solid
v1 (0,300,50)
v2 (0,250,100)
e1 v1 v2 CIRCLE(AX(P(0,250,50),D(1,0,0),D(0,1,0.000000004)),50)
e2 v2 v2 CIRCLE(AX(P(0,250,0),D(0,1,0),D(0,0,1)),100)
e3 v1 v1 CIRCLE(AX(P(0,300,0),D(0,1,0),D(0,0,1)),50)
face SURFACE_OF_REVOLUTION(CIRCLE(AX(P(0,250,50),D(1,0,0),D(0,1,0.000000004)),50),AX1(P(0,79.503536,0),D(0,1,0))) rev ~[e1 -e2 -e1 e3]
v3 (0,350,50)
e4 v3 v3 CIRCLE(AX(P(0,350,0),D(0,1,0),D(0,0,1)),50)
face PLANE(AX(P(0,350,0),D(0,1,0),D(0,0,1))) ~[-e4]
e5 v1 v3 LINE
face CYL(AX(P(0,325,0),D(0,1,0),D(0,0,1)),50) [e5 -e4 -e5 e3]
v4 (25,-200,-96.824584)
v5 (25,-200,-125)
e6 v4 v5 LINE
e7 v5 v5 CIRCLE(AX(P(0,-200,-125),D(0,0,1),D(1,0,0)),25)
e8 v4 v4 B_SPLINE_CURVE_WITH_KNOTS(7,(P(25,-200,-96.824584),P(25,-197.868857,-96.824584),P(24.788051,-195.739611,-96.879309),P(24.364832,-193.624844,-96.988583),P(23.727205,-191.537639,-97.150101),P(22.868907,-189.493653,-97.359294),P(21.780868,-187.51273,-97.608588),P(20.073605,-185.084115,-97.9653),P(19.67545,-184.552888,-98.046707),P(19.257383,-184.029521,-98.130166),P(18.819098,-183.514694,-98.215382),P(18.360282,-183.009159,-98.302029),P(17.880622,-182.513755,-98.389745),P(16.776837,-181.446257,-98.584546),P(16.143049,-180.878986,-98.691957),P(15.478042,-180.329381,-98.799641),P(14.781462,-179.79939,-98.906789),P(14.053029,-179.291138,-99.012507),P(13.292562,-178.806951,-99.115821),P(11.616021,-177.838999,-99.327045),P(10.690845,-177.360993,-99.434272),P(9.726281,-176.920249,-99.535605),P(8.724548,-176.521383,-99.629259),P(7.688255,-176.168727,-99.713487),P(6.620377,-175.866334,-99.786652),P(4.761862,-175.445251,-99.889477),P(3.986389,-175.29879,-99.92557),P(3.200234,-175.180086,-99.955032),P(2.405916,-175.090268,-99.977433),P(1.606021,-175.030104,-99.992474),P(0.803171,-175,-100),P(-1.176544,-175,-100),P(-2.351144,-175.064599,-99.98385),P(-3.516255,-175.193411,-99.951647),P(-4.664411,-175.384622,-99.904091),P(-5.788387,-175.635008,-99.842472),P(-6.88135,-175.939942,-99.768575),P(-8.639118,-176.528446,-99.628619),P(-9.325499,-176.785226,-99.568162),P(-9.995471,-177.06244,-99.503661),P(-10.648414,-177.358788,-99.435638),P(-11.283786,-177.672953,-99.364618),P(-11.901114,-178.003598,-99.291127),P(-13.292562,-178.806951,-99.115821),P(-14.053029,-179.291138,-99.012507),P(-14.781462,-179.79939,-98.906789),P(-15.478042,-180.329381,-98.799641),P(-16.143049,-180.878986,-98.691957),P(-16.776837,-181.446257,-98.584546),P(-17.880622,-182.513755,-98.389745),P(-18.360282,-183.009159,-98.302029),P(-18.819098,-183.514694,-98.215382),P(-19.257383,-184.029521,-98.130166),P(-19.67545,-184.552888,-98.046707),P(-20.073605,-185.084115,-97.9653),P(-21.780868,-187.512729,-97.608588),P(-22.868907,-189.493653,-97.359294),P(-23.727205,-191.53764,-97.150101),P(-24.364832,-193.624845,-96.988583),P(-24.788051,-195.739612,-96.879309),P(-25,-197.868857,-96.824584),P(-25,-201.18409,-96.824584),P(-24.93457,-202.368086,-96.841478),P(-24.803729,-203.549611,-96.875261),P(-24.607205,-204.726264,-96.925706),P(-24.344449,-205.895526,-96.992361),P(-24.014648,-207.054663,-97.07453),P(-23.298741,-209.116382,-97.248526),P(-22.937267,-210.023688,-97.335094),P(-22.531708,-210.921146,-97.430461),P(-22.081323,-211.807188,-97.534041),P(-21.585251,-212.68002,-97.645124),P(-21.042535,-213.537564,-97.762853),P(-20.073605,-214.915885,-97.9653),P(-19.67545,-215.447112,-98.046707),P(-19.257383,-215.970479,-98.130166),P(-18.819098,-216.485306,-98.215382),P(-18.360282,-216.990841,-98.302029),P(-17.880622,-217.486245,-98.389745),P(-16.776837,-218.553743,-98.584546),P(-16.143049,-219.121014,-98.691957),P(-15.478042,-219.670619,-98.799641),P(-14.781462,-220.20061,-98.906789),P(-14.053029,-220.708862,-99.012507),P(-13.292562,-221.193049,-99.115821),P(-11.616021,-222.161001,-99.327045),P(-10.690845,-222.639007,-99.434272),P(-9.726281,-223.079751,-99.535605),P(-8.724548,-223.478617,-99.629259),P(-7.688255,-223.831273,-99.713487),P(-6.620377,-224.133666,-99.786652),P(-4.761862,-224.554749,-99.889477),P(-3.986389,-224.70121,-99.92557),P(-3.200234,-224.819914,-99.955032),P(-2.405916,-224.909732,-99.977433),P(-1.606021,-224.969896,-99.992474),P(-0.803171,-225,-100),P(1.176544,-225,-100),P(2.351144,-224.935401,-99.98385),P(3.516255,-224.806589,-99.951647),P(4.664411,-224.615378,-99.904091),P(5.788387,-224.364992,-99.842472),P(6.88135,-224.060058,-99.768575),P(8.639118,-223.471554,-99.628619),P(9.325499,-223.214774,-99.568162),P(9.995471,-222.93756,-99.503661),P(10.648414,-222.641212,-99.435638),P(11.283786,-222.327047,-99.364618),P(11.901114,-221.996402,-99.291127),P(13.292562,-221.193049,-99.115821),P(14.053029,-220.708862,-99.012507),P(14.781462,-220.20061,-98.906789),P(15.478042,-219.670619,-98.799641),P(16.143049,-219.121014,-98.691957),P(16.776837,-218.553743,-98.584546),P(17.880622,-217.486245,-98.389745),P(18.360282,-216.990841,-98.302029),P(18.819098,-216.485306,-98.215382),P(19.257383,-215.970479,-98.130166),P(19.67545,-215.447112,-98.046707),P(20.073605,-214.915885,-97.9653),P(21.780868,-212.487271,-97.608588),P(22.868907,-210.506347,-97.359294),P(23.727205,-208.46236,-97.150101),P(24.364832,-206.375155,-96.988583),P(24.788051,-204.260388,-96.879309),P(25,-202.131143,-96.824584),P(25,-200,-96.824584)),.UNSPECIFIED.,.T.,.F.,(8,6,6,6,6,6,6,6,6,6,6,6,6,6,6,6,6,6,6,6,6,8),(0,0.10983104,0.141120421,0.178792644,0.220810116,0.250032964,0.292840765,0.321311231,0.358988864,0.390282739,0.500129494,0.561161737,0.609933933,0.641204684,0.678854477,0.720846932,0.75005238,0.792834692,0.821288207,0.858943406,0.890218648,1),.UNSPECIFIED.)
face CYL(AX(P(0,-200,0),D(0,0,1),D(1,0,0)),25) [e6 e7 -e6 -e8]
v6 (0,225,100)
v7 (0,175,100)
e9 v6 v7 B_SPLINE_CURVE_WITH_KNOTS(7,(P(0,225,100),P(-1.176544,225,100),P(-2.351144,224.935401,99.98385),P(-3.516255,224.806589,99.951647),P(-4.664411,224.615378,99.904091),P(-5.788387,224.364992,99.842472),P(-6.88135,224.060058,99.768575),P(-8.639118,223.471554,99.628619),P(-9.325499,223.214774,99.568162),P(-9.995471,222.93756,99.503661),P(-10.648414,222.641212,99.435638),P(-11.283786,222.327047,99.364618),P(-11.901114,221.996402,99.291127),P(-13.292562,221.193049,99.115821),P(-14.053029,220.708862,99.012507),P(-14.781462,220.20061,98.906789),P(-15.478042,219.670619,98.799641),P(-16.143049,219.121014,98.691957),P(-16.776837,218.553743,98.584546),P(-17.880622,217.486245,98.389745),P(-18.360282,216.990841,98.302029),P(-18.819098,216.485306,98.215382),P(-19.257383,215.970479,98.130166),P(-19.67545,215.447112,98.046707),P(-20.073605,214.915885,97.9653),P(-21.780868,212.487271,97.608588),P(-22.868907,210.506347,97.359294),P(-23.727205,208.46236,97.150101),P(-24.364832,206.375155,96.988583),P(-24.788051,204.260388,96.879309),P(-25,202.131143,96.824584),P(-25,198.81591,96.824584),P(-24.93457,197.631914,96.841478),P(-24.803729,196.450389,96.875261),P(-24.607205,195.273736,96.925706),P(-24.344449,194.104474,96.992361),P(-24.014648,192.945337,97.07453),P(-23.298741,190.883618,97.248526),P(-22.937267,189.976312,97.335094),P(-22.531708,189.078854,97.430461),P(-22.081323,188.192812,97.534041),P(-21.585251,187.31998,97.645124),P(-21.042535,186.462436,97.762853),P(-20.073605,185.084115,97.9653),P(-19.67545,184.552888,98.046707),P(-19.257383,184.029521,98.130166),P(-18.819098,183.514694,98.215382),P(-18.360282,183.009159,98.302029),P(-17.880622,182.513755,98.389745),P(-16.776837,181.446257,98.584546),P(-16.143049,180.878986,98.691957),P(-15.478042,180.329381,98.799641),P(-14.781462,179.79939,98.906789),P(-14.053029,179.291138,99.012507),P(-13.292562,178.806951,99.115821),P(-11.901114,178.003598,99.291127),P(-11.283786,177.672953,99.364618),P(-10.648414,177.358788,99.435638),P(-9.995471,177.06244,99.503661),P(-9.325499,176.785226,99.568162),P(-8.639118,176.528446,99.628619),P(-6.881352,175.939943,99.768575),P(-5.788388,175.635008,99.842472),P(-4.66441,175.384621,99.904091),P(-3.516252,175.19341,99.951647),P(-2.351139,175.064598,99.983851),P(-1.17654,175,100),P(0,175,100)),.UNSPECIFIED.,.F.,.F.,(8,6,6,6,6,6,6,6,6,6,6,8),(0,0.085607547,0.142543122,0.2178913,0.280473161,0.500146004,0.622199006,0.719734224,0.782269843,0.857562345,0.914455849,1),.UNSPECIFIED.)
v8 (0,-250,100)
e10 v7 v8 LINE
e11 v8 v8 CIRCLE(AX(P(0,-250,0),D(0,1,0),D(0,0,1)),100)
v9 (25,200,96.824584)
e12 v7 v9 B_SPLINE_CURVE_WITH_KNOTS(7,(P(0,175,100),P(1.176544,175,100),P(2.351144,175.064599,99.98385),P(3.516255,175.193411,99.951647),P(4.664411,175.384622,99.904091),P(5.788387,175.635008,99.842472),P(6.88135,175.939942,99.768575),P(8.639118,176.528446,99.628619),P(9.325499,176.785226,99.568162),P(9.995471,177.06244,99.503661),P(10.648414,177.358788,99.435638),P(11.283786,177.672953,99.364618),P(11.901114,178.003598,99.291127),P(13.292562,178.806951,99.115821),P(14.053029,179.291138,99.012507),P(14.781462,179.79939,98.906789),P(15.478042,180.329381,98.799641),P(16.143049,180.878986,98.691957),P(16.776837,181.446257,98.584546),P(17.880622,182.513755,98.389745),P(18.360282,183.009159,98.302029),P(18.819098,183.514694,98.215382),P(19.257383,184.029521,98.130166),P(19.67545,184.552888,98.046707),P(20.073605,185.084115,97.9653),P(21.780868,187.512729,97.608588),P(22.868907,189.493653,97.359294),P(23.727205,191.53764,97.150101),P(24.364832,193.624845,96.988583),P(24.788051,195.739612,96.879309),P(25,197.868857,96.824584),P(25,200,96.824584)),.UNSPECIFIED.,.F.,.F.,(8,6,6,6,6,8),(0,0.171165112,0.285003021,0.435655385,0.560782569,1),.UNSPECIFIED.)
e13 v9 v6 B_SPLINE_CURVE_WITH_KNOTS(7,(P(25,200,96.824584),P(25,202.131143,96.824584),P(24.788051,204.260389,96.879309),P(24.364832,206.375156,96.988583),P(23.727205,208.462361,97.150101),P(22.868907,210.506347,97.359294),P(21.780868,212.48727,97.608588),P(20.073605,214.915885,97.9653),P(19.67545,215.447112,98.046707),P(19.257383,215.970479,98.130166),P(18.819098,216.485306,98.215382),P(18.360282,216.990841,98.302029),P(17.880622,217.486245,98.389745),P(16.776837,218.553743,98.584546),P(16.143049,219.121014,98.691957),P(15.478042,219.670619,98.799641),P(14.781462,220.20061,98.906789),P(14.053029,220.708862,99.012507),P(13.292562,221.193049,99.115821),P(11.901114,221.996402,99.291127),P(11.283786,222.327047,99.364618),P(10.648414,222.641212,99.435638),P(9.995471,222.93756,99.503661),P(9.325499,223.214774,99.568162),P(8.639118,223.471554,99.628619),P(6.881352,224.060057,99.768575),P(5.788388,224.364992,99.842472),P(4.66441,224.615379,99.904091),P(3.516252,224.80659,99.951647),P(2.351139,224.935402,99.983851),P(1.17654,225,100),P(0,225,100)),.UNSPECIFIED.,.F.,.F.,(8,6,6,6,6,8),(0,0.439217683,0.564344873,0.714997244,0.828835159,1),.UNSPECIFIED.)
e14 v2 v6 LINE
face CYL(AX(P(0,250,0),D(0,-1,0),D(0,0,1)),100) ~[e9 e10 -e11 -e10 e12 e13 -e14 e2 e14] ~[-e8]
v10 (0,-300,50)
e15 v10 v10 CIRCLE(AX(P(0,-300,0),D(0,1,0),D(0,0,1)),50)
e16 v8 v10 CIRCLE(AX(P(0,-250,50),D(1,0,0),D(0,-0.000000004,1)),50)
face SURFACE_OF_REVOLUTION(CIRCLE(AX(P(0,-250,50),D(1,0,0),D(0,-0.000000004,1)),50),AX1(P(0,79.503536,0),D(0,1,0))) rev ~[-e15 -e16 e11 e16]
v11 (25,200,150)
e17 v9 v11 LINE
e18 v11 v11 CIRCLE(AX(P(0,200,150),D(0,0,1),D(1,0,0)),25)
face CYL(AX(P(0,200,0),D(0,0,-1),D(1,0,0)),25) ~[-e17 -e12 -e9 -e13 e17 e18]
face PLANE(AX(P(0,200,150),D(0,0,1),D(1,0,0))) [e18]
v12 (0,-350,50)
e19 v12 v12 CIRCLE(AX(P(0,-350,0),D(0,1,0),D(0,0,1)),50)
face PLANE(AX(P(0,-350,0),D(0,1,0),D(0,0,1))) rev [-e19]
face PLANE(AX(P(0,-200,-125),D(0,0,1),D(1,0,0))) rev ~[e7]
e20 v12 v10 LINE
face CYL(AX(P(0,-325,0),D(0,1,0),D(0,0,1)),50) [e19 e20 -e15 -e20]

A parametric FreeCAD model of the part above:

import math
import FreeCAD as App
import Part
import Sketcher

V = App.Vector
Q = App.Units.Quantity

doc = App.newDocument("Part")
body = doc.addObject("PartDesign::Body", "Body")

sketch1 = body.newObject("Sketcher::SketchObject", "Sketch")
sketch1.AttachmentSupport = (doc.getObject("YZ_Plane"), [""])
sketch1.MapMode = "FlatFace"
sketch1.addGeometry(Part.LineSegment(V(-350, 50, 0), V(-350, 0, 0)), False)
sketch1.addGeometry(Part.LineSegment(V(-350, 0, 0), V(350, 0, 0)), False)
sketch1.addGeometry(Part.LineSegment(V(350, 0, 0), V(350, 50, 0)), False)
sketch1.addGeometry(Part.LineSegment(V(350, 50, 0), V(300, 50, 0)), False)
sketch1.addGeometry(Part.ArcOfCircle(Part.Circle(V(250, 50, 0), V(0, 0, 1), 50), math.radians(0), math.radians(90)), False)
sketch1.addGeometry(Part.LineSegment(V(250, 100, 0), V(-250, 100, 0)), False)
sketch1.addGeometry(Part.ArcOfCircle(Part.Circle(V(-250, 50, 0), V(0, 0, 1), 50), math.radians(90), math.radians(180)), False)
sketch1.addGeometry(Part.LineSegment(V(-300, 50, 0), V(-350, 50, 0)), False)
sketch1.addConstraint(Sketcher.Constraint("Coincident", 0, 2, 1, 1))
sketch1.addConstraint(Sketcher.Constraint("Coincident", 1, 2, 2, 1))
sketch1.addConstraint(Sketcher.Constraint("Coincident", 2, 2, 3, 1))
sketch1.addConstraint(Sketcher.Constraint("Coincident", 3, 2, 4, 1))
sketch1.addConstraint(Sketcher.Constraint("Tangent", 4, 2, 5, 1))
sketch1.addConstraint(Sketcher.Constraint("Tangent", 5, 2, 6, 1))
sketch1.addConstraint(Sketcher.Constraint("Coincident", 6, 2, 7, 1))
sketch1.addConstraint(Sketcher.Constraint("Coincident", 7, 2, 0, 1))
sketch1.addConstraint(Sketcher.Constraint("Vertical", 0))
sketch1.addConstraint(Sketcher.Constraint("Horizontal", 1))
sketch1.addConstraint(Sketcher.Constraint("Vertical", 2))
sketch1.addConstraint(Sketcher.Constraint("Horizontal", 3))
sketch1.addConstraint(Sketcher.Constraint("Horizontal", 5))
sketch1.addConstraint(Sketcher.Constraint("Horizontal", 7))
sketch1.addConstraint(Sketcher.Constraint("Equal", 4, 6))
sketch1.addConstraint(Sketcher.Constraint("Symmetric", 0, 2, 1, 2, -1, 1))
sketch1.addConstraint(Sketcher.Constraint("Symmetric", 3, 2, 6, 2, -2))
sketch1.addConstraint(Sketcher.Constraint("Horizontal", 6, 3, 2, 2))
sketch1.addConstraint(Sketcher.Constraint("Equal", 7, 0))
sketch1.addConstraint(Sketcher.Constraint("Radius", 4, Q("50 mm")))
sketch1.addConstraint(Sketcher.Constraint("DistanceX", 1, 1, 1, 2, Q("700 mm")))
sketch1.addConstraint(Sketcher.Constraint("DistanceX", 3, 2, 3, 1, Q("50 mm")))
revolution = body.newObject("PartDesign::Revolution", "Revolution")
revolution.Profile = sketch1
revolution.ReferenceAxis = (sketch1, ["H_Axis"])
revolution.Angle = 360

sketch2 = body.newObject("Sketcher::SketchObject", "Sketch001")
sketch2.AttachmentSupport = (doc.getObject("XY_Plane"), [""])
sketch2.MapMode = "FlatFace"
sketch2.addGeometry(Part.Circle(V(0, 200, 0), V(0, 0, 1), 25), False)
sketch2.addConstraint(Sketcher.Constraint("PointOnObject", 0, 3, -2))
sketch2.addConstraint(Sketcher.Constraint("Diameter", 0, Q("50 mm")))
sketch2.addConstraint(Sketcher.Constraint("DistanceY", -1, 1, 0, 3, Q("200 mm")))
pad1 = body.newObject("PartDesign::Pad", "Pad")
pad1.Profile = sketch2
pad1.Length = 150

sketch3 = body.newObject("Sketcher::SketchObject", "Sketch002")
sketch3.AttachmentSupport = (doc.getObject("XY_Plane"), [""])
sketch3.MapMode = "FlatFace"
sketch3.addGeometry(Part.Circle(V(0, -200, 0), V(0, 0, 1), 25), False)
sketch3.addConstraint(Sketcher.Constraint("PointOnObject", 0, 3, -2))
sketch3.addConstraint(Sketcher.Constraint("Diameter", 0, Q("50 mm")))
sketch3.addConstraint(Sketcher.Constraint("DistanceY", 0, 3, -1, 1, Q("200 mm")))
pad2 = body.newObject("PartDesign::Pad", "Pad001")
pad2.Profile = sketch3
pad2.Length = 125
pad2.Reversed = True

doc.recompute()
